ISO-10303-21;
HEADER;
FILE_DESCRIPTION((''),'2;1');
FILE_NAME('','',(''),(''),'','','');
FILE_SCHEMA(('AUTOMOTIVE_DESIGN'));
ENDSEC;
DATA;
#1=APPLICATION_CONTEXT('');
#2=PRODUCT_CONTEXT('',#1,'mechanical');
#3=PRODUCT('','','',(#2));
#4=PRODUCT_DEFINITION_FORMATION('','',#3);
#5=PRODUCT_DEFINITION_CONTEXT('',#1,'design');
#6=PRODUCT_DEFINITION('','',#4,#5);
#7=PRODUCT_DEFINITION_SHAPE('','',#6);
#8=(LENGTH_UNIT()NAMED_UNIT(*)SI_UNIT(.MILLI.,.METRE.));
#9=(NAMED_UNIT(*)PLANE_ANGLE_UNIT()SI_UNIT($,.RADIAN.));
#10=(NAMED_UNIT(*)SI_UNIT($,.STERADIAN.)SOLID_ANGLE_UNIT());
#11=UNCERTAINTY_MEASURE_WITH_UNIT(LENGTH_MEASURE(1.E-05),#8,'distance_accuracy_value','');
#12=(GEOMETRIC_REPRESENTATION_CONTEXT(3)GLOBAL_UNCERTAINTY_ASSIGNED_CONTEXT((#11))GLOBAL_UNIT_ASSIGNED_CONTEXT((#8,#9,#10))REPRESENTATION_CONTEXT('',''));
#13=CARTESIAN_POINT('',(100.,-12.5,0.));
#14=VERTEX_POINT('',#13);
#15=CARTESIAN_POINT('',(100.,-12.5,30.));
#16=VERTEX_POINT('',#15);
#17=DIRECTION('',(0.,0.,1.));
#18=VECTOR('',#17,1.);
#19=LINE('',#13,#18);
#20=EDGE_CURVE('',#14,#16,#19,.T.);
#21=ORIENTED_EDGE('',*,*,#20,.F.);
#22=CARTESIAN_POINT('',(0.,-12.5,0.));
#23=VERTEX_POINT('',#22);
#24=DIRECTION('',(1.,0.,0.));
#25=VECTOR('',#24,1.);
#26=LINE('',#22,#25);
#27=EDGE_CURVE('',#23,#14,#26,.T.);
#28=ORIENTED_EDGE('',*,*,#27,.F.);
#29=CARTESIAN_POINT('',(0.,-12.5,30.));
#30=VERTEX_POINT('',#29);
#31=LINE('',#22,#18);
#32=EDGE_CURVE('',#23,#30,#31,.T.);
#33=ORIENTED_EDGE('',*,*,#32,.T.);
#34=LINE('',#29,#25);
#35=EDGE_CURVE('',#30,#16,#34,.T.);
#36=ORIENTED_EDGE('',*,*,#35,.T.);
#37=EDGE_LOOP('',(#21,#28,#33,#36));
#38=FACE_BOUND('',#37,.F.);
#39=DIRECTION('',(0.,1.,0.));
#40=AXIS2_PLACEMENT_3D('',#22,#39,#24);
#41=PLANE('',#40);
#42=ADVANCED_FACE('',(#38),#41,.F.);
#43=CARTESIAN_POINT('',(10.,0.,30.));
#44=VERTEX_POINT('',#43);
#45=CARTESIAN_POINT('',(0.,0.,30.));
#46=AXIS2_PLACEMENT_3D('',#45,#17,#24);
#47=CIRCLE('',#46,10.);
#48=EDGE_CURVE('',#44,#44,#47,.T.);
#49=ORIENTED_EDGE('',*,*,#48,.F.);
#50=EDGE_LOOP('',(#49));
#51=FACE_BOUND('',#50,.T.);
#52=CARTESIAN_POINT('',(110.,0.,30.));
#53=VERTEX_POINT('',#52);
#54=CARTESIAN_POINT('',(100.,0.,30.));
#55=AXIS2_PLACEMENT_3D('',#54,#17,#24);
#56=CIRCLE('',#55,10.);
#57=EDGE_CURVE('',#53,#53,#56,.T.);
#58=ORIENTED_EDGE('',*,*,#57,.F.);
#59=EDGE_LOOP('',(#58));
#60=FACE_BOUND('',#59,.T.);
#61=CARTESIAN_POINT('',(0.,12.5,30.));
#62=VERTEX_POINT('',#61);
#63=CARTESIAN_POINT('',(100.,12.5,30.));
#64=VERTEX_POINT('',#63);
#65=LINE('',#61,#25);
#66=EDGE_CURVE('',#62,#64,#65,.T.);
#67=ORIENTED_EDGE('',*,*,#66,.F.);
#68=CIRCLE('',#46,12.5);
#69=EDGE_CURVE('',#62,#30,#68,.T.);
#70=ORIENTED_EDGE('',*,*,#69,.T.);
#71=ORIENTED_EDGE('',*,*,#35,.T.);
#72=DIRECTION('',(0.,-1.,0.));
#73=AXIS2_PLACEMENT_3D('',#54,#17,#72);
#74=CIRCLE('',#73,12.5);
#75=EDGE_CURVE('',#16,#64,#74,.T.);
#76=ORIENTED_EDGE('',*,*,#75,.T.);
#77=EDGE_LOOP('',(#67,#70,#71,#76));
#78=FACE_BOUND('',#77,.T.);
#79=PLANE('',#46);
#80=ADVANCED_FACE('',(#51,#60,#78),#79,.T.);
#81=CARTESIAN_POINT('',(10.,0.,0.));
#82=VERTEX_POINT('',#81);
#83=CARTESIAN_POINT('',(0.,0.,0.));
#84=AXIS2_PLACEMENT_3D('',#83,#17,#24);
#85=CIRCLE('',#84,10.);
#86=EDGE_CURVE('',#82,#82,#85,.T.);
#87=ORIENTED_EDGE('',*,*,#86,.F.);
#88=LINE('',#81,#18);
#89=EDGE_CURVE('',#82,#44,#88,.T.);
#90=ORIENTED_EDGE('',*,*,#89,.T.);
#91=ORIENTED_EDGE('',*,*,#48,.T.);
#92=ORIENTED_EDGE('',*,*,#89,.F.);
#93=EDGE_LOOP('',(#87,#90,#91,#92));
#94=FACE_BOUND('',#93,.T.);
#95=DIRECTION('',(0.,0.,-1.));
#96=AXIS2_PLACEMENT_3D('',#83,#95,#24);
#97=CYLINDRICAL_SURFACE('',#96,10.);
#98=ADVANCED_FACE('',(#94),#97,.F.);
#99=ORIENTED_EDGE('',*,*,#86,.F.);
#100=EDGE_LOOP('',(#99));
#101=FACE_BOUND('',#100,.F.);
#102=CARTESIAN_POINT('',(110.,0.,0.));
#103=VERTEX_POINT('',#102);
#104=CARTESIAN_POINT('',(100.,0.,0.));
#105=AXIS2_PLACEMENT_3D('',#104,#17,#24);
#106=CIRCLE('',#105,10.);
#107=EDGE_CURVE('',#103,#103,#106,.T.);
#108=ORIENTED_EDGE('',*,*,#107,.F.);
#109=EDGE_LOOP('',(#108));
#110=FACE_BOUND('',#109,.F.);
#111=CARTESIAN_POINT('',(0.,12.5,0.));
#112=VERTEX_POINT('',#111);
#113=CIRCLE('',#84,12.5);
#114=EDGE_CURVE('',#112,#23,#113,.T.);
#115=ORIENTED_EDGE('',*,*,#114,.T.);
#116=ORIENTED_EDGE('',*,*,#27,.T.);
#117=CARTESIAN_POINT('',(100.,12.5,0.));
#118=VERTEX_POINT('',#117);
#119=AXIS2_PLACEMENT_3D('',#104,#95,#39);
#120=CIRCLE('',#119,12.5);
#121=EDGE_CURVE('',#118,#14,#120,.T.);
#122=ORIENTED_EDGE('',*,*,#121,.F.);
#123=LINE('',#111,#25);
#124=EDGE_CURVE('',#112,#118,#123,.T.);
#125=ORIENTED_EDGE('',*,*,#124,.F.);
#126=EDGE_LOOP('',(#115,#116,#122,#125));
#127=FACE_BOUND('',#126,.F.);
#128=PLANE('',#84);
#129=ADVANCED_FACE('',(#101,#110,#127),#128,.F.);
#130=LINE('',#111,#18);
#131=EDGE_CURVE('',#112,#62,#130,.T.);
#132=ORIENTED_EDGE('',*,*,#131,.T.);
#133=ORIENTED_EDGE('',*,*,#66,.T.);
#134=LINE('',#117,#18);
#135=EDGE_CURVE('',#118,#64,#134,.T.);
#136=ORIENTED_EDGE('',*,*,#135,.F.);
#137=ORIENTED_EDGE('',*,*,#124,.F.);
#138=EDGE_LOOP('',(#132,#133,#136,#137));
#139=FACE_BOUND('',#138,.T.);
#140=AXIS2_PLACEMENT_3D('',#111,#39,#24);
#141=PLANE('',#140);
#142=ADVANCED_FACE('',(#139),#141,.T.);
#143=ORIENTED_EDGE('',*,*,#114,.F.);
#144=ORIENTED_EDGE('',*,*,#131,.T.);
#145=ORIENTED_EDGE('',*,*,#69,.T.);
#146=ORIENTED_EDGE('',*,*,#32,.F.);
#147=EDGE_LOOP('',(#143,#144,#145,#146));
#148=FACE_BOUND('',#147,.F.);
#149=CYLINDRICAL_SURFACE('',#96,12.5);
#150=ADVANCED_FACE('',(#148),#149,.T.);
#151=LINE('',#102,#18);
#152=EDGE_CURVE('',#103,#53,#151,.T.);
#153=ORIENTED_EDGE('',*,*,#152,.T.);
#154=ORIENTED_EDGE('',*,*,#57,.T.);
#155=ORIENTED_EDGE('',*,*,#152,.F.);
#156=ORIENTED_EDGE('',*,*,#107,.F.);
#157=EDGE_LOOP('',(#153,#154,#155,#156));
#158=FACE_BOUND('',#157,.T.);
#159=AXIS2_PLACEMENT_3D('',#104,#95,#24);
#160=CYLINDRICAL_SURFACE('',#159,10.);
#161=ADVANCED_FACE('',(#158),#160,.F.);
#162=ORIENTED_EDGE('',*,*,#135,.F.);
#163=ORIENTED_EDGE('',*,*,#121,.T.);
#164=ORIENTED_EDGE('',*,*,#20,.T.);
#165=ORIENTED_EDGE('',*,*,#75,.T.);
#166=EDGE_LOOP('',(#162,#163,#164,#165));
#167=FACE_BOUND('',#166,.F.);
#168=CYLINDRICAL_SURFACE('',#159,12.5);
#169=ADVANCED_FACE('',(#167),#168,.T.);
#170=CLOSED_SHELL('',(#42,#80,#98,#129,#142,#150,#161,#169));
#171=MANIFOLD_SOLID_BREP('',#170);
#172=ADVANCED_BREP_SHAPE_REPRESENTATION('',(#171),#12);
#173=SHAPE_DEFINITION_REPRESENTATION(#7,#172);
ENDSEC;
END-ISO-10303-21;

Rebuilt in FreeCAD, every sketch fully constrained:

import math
import FreeCAD as App
import Part
import Sketcher
from FreeCAD import Vector

doc = App.newDocument("Part")
body = doc.addObject("PartDesign::Body", "Body")

# Sketch on XY plane
sketch1 = body.newObject("Sketcher::SketchObject", "Sketch")
sketch1.AttachmentSupport = (doc.getObject("XY_Plane"), [""])
sketch1.MapMode = "FlatFace"
sketch1.addGeometry([
    Part.ArcOfCircle(Part.Circle(Vector(0, 0, 0), Vector(0, 0, 1), 12.5), math.radians(90), math.radians(270)),  # 0
    Part.LineSegment(Vector(0, -12.5, 0), Vector(100, -12.5, 0)),  # 1
    Part.ArcOfCircle(Part.Circle(Vector(100, 0, 0), Vector(0, 0, 1), 12.5), math.radians(-90), math.radians(90)),  # 2
    Part.LineSegment(Vector(100, 12.5, 0), Vector(0, 12.5, 0)),  # 3
    Part.Circle(Vector(0, 0, 0), Vector(0, 0, 1), 10),  # 4
    Part.Circle(Vector(100, 0, 0), Vector(0, 0, 1), 10),  # 5
], False)
sketch1.addConstraint([
    Sketcher.Constraint("Tangent", 0, 2, 1, 1),
    Sketcher.Constraint("Tangent", 1, 2, 2, 1),
    Sketcher.Constraint("Tangent", 2, 2, 3, 1),
    Sketcher.Constraint("Tangent", 3, 2, 0, 1),
    Sketcher.Constraint("Horizontal", 1),
    Sketcher.Constraint("Horizontal", 3),
    Sketcher.Constraint("Coincident", 0, 3, -1, 1),
    Sketcher.Constraint("Coincident", 4, 3, -1, 1),
    Sketcher.Constraint("Coincident", 5, 3, 2, 3),
    Sketcher.Constraint("Equal", 4, 5),
    Sketcher.Constraint("Diameter", 4, 20.0),
    Sketcher.Constraint("Radius", 0, 12.5),
    Sketcher.Constraint("DistanceX", 1, 1, 1, 2, 100.0),
])
pad1 = body.newObject("PartDesign::Pad", "Pad")
pad1.Profile = sketch1
pad1.Length = 30

doc.recompute()
